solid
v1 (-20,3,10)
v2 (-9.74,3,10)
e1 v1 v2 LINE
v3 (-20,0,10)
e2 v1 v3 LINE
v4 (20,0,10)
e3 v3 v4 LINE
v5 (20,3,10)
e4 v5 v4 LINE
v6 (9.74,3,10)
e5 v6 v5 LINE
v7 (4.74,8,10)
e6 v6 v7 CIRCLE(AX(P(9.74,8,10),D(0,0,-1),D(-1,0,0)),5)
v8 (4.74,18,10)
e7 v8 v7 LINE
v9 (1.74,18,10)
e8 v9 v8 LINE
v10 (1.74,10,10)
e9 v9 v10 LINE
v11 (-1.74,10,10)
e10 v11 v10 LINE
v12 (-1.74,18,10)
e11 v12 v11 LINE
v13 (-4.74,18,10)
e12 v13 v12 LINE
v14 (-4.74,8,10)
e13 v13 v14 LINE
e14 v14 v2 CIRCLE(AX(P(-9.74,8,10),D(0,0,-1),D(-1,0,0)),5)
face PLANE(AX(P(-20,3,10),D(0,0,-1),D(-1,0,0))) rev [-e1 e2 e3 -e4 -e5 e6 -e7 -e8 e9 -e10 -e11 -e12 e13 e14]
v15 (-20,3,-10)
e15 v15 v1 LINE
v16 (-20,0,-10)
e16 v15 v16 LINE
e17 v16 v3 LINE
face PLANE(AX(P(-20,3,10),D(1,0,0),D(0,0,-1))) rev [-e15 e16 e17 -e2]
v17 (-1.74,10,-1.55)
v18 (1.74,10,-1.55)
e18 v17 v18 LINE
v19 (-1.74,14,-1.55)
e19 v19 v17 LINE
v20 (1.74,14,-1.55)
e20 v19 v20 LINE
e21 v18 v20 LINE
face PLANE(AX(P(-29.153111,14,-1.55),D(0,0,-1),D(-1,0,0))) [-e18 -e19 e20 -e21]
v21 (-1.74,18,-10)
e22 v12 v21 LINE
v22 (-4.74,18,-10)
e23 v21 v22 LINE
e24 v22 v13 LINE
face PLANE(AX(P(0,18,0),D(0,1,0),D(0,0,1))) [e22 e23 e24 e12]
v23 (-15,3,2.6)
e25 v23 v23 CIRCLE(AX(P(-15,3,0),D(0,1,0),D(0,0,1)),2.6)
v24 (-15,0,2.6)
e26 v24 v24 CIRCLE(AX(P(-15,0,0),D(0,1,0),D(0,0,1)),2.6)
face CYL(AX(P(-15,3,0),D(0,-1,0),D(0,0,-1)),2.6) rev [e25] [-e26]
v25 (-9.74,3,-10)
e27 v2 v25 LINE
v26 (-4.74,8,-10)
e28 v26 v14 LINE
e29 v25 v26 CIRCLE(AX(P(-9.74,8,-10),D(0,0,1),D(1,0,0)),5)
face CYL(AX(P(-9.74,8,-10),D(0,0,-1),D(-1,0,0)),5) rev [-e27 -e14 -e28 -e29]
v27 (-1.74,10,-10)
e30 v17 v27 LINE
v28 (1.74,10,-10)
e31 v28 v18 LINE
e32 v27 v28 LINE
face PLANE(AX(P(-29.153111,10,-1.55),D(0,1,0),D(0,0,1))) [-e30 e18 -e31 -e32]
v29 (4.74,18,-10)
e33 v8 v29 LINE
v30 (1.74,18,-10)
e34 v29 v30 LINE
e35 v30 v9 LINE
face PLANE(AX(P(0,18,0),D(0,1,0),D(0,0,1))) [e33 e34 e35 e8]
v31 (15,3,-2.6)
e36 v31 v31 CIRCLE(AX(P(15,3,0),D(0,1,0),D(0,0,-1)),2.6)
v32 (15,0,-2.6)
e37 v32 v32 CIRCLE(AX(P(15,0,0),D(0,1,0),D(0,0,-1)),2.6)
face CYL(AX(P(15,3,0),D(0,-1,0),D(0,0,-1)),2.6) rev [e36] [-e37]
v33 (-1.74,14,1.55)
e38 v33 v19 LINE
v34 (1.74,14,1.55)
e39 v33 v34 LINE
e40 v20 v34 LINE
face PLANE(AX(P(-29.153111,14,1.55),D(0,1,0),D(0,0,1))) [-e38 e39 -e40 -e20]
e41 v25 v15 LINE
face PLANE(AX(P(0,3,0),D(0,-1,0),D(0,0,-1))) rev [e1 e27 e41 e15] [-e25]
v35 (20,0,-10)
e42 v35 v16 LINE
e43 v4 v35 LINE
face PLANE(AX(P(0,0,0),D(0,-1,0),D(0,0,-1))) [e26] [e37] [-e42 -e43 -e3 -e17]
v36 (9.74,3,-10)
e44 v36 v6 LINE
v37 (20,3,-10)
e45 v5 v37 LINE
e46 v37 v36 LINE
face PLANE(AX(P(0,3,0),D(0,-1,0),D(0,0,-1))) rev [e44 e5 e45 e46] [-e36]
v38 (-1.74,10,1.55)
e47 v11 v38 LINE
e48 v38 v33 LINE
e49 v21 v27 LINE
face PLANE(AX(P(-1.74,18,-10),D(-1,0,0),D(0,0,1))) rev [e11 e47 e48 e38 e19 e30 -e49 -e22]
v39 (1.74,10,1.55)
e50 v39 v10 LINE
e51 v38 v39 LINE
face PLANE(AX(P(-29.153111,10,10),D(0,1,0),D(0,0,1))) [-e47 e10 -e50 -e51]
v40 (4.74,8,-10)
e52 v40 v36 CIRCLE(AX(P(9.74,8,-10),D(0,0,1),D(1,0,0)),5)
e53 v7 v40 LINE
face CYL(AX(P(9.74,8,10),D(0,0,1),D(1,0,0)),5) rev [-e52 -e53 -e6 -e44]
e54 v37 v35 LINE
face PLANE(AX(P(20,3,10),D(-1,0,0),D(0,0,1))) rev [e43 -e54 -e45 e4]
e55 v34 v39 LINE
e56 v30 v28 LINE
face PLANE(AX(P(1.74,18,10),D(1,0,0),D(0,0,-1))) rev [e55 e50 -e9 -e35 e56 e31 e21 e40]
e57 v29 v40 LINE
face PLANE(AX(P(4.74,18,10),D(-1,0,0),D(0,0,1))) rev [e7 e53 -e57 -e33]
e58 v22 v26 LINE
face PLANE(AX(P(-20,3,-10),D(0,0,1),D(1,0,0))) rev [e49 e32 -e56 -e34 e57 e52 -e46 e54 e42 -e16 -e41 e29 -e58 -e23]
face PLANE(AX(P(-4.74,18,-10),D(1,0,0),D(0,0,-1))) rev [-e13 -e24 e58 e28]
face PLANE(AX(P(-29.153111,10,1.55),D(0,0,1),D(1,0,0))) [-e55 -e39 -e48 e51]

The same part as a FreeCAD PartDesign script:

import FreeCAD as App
import Part
import Sketcher
Q = App.Units.Quantity


def edges_at(feature, points):
    """Names of the edges that pass closest to the given points."""
    edges = feature.Shape.Edges
    near = lambda p: min(range(len(edges)), key=lambda i: edges[i].distToShape(Part.Vertex(*p))[0])
    return sorted({f"Edge{near(p) + 1}" for p in points})


def add_polygon(sketch, points):
    """Adds a closed chain of lines whose ends are joined by coincident constraints."""
    first, n = sketch.GeometryCount, len(points)
    for a, b in zip(points, points[1:] + points[:1]):
        sketch.addGeometry(Part.LineSegment(App.Vector(*a, 0), App.Vector(*b, 0)), False)
    for i in range(n):
        sketch.addConstraint(Sketcher.Constraint("Coincident", first + i, 2, first + (i + 1) % n, 1))

doc = App.newDocument("Part")
body = doc.addObject("PartDesign::Body", "Body")

# Sketch on XZ plane
sketch1 = doc.addObject("Sketcher::SketchObject", "Sketch")
body.addObject(sketch1)
sketch1.AttachmentSupport = (doc.XZ_Plane, [""])
sketch1.MapMode = "FlatFace"
add_polygon(sketch1, [(-20, -10), (-20, 10), (20, 10), (20, -10)])  # lines 0-3
sketch1.addGeometry(Part.Circle(App.Vector(-15, 0, 0), App.Vector(0, 0, 1), 2.6), False)  # 4
sketch1.addGeometry(Part.Circle(App.Vector(15, 0, 0), App.Vector(0, 0, 1), 2.6), False)  # 5
sketch1.addConstraint(Sketcher.Constraint("Vertical", 0))
sketch1.addConstraint(Sketcher.Constraint("Horizontal", 1))
sketch1.addConstraint(Sketcher.Constraint("Vertical", 2))
sketch1.addConstraint(Sketcher.Constraint("Horizontal", 3))
sketch1.addConstraint(Sketcher.Constraint("Equal", 4, 5))
sketch1.addConstraint(Sketcher.Constraint("Symmetric", 4, 3, 5, 3, -1, 1))
sketch1.addConstraint(Sketcher.Constraint("Symmetric", 0, 2, 2, 2, -1, 1))
sketch1.addConstraint(Sketcher.Constraint("PointOnObject", 4, 3, -1))
sketch1.addConstraint(Sketcher.Constraint("Diameter", 4, Q("5.2 mm")))
sketch1.addConstraint(Sketcher.Constraint("DistanceX", 1, 1, 1, 2, Q("40 mm")))
sketch1.addConstraint(Sketcher.Constraint("DistanceY", 0, 1, 0, 2, Q("20 mm")))
sketch1.addConstraint(Sketcher.Constraint("DistanceX", 4, 3, -1, 1, Q("15 mm")))
pad1 = doc.addObject("PartDesign::Pad", "Pad")
body.addObject(pad1)
pad1.Profile = sketch1
pad1.Length = 3
pad1.Reversed = True

# Sketch on XZ plane
sketch2 = doc.addObject("Sketcher::SketchObject", "Sketch001")
body.addObject(sketch2)
sketch2.AttachmentSupport = (doc.XZ_Plane, [""])
sketch2.MapMode = "FlatFace"
sketch2.AttachmentOffset = App.Placement(App.Vector(0, 0, -3), App.Rotation())
add_polygon(sketch2, [(-4.7, -10), (-4.7, 10), (-1.7, 10), (-1.7, -10)])  # lines 0-3
add_polygon(sketch2, [(1.7, -10), (1.7, 10), (4.7, 10), (4.7, -10)])  # lines 4-7
sketch2.addConstraint(Sketcher.Constraint("Vertical", 0))
sketch2.addConstraint(Sketcher.Constraint("Horizontal", 1))
sketch2.addConstraint(Sketcher.Constraint("Vertical", 2))
sketch2.addConstraint(Sketcher.Constraint("Horizontal", 3))
sketch2.addConstraint(Sketcher.Constraint("Vertical", 4))
sketch2.addConstraint(Sketcher.Constraint("Horizontal", 5))
sketch2.addConstraint(Sketcher.Constraint("Vertical", 6))
sketch2.addConstraint(Sketcher.Constraint("Horizontal", 7))
sketch2.addConstraint(Sketcher.Constraint("Symmetric", 2, 2, 4, 2, -1, 1))
sketch2.addConstraint(Sketcher.Constraint("Symmetric", 0, 2, 6, 2, -1, 1))
sketch2.addConstraint(Sketcher.Constraint("Horizontal", 1, 2, 4, 2))
sketch2.addConstraint(Sketcher.Constraint("DistanceX", 1, 1, 1, 2, Q("3 mm")))
sketch2.addConstraint(Sketcher.Constraint("DistanceY", 0, 1, 0, 2, Q("20 mm")))
sketch2.addConstraint(Sketcher.Constraint("DistanceX", 0, 2, -1, 1, Q("4.74 mm")))
pad2 = doc.addObject("PartDesign::Pad", "Pad001")
body.addObject(pad2)
pad2.Profile = sketch2
pad2.Length = 15
pad2.Reversed = True

# Sketch on YZ plane
sketch3 = doc.addObject("Sketcher::SketchObject", "Sketch002")
body.addObject(sketch3)
sketch3.AttachmentSupport = (doc.YZ_Plane, [""])
sketch3.MapMode = "FlatFace"
sketch3.AttachmentOffset = App.Placement(App.Vector(0, 0, 4.74), App.Rotation())
add_polygon(sketch3, [(0, 10), (0, -10), (10, -10), (10, -1.6), (14, -1.6), (14, 1.6), (10, 1.6), (10, 10)])  # lines 0-7
sketch3.addConstraint(Sketcher.Constraint("Vertical", 0))
sketch3.addConstraint(Sketcher.Constraint("Horizontal", 1))
sketch3.addConstraint(Sketcher.Constraint("Vertical", 2))
sketch3.addConstraint(Sketcher.Constraint("Horizontal", 3))
sketch3.addConstraint(Sketcher.Constraint("Vertical", 4))
sketch3.addConstraint(Sketcher.Constraint("Horizontal", 5))
sketch3.addConstraint(Sketcher.Constraint("Vertical", 6))
sketch3.addConstraint(Sketcher.Constraint("Horizontal", 7))
sketch3.addConstraint(Sketcher.Constraint("Symmetric", 0, 2, 7, 2, -1, 1))
sketch3.addConstraint(Sketcher.Constraint("Symmetric", 2, 2, 5, 2, -1))
sketch3.addConstraint(Sketcher.Constraint("DistanceX", 1, 1, 1, 2, Q("10 mm")))
sketch3.addConstraint(Sketcher.Constraint("DistanceX", 3, 1, 3, 2, Q("4 mm")))
sketch3.addConstraint(Sketcher.Constraint("DistanceY", 0, 2, 0, 1, Q("20 mm")))
sketch3.addConstraint(Sketcher.Constraint("DistanceY", 4, 1, 4, 2, Q("3.1 mm")))
pad3 = doc.addObject("PartDesign::Pad", "Pad002")
body.addObject(pad3)
pad3.Profile = sketch3
pad3.Length = 9.48
pad3.Reversed = True
doc.recompute()

fillet = doc.addObject("PartDesign::Fillet", "Fillet")
body.addObject(fillet)
fillet.Base = (pad3, edges_at(pad3, [(-4.74, 3, 0), (4.74, 3, 0)]))
fillet.Radius = 5

doc.recompute()
